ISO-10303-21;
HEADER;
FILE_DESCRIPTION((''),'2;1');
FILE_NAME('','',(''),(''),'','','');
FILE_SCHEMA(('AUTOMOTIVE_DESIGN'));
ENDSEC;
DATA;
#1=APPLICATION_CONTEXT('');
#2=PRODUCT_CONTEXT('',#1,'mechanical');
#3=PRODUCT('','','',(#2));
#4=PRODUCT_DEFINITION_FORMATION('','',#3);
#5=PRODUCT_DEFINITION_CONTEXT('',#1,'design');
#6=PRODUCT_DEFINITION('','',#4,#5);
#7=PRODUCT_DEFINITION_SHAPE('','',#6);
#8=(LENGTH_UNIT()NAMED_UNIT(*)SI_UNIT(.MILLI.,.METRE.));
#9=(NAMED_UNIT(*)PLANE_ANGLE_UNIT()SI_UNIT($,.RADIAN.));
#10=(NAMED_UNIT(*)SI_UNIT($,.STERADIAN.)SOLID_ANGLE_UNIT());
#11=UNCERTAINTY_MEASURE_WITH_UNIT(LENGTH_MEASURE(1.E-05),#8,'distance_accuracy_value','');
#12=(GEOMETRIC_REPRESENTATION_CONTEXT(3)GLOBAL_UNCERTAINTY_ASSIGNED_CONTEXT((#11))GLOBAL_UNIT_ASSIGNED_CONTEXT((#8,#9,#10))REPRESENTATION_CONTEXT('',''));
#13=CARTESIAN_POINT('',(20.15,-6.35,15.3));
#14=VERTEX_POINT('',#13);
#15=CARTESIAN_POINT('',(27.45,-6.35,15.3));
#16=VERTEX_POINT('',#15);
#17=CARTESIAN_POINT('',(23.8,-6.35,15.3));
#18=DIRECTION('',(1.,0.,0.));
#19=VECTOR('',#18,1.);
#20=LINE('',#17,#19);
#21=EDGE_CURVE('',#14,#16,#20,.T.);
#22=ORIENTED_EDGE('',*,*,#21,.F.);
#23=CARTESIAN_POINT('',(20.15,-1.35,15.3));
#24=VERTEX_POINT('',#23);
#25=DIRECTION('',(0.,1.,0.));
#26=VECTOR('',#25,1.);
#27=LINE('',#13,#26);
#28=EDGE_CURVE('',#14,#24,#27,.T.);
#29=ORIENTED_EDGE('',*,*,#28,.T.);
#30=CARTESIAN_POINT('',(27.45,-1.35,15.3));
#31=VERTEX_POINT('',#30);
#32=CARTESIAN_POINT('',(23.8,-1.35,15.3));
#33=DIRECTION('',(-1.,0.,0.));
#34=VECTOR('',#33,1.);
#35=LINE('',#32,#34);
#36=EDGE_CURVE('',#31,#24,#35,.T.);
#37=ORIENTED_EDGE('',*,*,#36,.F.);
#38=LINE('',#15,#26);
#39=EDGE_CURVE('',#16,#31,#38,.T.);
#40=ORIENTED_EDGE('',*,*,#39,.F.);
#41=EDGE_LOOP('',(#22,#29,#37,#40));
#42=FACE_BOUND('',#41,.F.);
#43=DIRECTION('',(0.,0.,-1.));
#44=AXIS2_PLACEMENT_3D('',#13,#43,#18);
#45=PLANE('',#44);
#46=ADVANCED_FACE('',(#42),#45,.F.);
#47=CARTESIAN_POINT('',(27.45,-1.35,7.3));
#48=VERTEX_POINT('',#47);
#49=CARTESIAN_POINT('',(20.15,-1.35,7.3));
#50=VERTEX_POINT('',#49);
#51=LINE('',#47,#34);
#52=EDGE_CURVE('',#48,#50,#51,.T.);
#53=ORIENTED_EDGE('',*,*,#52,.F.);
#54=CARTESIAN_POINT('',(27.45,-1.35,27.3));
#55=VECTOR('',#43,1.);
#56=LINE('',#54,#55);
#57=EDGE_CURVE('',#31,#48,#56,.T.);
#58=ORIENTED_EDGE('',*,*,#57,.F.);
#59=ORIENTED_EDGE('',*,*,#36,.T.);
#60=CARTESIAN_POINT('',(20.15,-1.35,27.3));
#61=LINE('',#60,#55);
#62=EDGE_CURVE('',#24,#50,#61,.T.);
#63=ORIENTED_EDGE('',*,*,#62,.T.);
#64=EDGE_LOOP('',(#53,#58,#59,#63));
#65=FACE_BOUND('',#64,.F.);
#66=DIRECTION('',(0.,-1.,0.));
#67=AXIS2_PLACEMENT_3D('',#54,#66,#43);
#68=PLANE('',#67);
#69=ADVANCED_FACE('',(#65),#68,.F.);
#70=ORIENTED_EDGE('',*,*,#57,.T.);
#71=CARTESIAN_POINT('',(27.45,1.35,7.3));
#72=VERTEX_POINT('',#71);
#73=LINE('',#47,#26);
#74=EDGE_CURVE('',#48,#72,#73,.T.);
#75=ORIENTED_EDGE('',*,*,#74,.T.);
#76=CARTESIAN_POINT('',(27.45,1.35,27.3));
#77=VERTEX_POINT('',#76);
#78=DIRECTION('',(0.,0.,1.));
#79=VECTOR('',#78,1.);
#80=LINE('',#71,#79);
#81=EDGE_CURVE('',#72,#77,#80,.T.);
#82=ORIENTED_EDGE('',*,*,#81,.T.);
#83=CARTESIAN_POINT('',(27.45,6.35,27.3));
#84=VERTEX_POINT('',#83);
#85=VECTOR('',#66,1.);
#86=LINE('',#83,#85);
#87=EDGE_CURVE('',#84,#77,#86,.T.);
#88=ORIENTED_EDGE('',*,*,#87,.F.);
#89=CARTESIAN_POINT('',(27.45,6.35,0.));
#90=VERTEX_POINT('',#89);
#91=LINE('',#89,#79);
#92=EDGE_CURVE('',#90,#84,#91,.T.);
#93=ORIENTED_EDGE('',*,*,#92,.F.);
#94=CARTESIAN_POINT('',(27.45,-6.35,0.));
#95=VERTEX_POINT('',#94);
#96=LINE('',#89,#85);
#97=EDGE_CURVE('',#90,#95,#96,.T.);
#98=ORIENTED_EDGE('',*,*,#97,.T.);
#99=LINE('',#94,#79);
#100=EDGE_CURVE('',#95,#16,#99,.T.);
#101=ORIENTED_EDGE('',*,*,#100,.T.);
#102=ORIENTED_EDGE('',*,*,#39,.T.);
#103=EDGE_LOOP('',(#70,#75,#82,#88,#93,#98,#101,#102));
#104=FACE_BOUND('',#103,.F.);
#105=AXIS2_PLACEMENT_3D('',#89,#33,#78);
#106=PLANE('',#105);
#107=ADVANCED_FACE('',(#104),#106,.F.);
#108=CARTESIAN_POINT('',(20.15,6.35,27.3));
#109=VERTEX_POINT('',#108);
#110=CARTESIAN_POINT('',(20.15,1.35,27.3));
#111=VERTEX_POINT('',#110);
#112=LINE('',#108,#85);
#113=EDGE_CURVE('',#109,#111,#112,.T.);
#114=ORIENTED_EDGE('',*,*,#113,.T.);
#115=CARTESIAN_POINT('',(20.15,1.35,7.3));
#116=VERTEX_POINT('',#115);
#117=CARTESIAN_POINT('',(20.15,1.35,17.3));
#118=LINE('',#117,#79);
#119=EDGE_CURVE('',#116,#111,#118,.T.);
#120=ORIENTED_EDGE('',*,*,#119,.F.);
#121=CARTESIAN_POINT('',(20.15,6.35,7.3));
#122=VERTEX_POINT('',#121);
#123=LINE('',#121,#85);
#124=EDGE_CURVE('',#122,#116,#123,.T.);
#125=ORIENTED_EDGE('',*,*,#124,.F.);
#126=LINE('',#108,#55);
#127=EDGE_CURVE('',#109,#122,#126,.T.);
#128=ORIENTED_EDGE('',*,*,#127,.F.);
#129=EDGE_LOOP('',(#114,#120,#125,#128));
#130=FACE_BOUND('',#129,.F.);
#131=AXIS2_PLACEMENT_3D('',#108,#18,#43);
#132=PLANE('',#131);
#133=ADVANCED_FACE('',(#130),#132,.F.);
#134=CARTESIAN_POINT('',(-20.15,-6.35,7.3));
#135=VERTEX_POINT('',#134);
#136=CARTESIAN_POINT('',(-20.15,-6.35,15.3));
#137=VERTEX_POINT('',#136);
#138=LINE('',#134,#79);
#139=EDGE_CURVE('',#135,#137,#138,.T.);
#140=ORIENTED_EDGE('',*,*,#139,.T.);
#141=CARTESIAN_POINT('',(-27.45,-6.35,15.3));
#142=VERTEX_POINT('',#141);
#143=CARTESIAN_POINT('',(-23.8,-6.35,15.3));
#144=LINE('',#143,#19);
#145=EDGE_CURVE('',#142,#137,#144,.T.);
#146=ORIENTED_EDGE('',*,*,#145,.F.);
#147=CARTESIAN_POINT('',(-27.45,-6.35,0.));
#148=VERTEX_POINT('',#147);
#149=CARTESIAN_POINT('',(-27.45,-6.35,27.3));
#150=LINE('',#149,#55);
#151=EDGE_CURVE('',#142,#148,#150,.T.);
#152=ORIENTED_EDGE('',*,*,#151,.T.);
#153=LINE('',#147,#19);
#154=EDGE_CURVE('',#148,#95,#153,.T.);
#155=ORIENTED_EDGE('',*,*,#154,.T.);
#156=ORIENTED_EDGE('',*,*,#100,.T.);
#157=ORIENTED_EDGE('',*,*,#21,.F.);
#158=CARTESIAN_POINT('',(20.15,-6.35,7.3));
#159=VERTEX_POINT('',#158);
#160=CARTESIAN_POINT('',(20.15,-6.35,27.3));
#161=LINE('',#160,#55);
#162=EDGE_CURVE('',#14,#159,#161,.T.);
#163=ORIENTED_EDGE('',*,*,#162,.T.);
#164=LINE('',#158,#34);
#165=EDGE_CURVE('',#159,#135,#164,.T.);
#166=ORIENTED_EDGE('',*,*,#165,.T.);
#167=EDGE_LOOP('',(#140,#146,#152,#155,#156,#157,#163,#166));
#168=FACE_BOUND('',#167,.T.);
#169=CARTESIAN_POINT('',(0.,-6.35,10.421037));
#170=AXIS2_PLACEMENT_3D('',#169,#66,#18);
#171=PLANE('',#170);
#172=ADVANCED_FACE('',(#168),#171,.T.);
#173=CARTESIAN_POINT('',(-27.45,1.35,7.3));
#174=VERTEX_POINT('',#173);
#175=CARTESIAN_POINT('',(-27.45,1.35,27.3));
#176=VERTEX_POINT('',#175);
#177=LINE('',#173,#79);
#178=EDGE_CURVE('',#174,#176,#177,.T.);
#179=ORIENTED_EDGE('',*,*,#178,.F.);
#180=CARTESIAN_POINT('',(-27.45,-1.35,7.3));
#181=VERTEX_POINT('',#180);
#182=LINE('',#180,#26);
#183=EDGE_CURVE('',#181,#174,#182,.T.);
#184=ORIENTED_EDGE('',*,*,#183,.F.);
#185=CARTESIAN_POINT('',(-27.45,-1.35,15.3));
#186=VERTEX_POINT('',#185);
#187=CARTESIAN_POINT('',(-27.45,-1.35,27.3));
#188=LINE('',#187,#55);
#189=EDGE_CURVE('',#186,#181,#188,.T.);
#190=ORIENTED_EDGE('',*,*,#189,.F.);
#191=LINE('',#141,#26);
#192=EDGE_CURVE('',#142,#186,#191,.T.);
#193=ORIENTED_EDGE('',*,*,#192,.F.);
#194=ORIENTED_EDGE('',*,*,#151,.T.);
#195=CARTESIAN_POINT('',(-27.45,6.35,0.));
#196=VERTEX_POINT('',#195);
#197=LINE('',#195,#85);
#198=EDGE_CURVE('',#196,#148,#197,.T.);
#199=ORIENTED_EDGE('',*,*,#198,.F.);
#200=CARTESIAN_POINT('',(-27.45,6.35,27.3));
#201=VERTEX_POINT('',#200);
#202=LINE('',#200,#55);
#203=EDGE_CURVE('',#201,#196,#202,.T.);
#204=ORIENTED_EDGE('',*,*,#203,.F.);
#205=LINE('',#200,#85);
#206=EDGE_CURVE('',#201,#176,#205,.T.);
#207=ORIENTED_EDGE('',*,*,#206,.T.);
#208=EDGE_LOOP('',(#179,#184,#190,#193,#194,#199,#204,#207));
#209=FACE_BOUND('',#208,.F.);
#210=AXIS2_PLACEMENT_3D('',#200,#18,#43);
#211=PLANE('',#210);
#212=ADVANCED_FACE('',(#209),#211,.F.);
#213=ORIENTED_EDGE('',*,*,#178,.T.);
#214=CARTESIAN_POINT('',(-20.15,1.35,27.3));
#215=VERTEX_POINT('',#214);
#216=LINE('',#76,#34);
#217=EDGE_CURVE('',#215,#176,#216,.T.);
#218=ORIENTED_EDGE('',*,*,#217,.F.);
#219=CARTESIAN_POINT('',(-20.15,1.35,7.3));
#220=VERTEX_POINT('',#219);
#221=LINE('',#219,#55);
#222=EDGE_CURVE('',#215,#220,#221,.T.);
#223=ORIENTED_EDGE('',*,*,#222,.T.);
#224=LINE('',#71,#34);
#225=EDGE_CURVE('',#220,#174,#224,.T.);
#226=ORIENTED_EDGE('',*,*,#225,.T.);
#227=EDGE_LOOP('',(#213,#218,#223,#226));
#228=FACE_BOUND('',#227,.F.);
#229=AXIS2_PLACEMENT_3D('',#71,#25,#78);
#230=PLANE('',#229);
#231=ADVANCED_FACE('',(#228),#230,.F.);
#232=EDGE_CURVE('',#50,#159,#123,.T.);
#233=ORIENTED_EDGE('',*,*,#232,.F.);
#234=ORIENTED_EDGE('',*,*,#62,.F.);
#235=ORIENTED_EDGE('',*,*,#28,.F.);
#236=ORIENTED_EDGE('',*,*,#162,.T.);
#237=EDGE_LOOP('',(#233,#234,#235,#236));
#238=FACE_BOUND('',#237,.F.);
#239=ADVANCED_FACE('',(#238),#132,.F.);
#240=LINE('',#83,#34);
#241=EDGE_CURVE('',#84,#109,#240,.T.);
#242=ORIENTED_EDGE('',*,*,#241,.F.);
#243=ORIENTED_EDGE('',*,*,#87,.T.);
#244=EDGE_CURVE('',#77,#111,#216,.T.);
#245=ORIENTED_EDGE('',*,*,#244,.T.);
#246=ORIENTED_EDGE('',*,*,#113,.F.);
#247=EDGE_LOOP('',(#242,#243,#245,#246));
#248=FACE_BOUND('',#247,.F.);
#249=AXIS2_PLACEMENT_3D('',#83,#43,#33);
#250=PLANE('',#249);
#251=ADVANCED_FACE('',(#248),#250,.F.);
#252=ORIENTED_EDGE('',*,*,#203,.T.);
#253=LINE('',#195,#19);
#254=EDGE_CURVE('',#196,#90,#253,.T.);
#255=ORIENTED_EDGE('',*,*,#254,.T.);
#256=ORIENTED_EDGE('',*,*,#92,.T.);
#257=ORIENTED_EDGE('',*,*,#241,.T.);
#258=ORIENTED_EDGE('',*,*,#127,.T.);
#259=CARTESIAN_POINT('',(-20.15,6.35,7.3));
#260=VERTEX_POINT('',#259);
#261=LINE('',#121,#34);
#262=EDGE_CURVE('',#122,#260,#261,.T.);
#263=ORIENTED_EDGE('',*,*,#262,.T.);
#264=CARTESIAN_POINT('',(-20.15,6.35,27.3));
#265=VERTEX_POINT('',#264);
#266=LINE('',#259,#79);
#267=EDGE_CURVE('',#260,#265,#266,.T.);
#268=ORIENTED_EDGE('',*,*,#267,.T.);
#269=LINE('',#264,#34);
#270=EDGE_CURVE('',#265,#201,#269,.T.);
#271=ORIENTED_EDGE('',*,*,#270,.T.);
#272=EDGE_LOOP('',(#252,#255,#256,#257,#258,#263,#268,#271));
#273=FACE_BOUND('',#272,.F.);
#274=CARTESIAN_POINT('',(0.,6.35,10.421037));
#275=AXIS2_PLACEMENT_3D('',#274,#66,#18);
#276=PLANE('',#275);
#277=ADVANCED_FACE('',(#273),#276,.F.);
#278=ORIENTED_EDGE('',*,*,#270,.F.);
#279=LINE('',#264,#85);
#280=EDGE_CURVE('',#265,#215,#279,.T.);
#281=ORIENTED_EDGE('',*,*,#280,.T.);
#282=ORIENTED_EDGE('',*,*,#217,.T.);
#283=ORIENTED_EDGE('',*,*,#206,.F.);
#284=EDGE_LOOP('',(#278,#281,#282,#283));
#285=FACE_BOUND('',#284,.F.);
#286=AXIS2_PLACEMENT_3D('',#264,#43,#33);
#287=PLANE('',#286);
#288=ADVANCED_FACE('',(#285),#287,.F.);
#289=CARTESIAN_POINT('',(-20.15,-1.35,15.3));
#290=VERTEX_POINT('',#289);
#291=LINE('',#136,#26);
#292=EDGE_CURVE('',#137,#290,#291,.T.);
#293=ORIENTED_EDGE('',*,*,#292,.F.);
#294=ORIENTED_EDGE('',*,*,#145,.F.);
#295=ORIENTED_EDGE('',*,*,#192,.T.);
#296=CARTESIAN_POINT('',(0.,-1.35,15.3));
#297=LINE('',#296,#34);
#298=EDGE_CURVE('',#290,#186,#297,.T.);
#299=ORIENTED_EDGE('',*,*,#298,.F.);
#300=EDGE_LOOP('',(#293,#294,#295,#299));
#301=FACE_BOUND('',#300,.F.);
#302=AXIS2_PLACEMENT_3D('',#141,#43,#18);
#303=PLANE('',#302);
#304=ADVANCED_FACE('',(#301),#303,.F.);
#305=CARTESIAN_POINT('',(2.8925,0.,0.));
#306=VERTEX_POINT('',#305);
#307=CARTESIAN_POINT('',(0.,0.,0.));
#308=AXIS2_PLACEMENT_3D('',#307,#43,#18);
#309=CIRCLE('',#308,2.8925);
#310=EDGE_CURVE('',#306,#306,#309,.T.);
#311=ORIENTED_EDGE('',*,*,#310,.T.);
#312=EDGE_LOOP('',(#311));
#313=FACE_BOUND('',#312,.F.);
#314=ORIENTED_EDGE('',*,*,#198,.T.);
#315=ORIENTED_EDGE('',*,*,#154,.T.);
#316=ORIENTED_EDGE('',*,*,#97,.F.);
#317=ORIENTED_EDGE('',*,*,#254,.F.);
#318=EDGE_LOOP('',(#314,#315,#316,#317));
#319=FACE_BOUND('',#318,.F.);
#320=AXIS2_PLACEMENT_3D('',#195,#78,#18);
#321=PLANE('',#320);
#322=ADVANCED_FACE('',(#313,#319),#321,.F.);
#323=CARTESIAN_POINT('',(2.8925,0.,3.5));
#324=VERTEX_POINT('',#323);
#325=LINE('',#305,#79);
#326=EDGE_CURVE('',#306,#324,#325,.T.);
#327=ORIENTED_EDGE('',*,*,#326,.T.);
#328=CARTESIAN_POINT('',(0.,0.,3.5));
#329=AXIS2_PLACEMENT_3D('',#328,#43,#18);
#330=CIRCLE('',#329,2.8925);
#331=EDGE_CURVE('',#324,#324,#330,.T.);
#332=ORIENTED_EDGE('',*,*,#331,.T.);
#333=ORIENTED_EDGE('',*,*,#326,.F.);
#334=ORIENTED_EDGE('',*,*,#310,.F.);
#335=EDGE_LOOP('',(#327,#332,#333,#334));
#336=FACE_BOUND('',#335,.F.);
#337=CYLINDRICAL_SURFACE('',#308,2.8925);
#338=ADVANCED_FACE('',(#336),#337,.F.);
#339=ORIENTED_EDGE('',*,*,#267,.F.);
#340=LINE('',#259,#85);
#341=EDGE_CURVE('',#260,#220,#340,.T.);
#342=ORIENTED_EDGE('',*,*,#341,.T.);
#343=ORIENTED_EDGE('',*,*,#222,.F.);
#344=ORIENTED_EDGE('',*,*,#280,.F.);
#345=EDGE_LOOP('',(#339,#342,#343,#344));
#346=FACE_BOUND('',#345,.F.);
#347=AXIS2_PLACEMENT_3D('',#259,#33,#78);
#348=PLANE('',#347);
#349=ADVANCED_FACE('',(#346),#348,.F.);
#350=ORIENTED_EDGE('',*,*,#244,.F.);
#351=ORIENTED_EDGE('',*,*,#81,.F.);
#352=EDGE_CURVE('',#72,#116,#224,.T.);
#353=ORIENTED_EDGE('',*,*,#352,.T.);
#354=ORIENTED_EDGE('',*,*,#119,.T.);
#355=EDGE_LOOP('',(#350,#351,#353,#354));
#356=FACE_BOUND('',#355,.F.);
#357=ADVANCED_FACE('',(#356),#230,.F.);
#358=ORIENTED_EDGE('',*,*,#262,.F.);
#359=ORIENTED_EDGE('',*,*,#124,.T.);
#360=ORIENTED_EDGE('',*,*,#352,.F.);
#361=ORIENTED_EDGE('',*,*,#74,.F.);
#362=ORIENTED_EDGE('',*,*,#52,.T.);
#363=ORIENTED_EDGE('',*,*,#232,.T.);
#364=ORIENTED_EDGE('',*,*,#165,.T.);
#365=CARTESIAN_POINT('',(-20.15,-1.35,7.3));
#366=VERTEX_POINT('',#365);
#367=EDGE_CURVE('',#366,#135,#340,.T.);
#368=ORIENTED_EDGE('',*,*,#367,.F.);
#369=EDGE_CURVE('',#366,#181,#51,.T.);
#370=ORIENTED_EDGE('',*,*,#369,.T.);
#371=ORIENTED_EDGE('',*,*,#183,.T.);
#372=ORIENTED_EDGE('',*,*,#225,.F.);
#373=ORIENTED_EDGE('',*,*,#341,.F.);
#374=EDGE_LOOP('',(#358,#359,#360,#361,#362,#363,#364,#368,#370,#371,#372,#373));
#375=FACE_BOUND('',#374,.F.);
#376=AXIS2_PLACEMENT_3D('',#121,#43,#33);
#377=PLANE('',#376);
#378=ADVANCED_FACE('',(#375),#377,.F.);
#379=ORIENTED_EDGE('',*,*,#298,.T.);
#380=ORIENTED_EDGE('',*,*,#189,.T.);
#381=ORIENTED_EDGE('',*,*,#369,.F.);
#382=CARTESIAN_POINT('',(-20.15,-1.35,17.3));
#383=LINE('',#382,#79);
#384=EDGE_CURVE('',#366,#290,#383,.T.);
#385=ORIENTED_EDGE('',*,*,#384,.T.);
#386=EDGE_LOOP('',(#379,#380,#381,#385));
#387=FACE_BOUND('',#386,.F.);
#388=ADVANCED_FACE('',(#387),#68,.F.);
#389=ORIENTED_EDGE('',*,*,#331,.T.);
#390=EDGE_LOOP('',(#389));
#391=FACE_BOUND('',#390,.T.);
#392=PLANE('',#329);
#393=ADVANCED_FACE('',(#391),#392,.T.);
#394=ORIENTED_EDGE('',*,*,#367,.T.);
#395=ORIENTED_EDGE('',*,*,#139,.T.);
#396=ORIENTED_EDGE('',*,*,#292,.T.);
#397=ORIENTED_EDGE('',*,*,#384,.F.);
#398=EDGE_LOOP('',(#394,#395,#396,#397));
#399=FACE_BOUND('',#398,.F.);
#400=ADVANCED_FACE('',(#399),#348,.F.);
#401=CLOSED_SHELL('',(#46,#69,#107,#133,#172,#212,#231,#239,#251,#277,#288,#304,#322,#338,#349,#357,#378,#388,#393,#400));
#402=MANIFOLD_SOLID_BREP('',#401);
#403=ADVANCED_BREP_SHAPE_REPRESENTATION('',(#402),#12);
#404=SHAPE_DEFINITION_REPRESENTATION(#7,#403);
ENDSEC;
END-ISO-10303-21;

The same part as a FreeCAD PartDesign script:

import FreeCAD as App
import Part
import Sketcher
from FreeCAD import Vector
Q = App.Units.Quantity


def add_polygon(sketch, points):
    """Adds a closed chain of lines whose ends are joined by coincident constraints."""
    first, n = sketch.GeometryCount, len(points)
    for a, b in zip(points, points[1:] + points[:1]):
        sketch.addGeometry(Part.LineSegment(App.Vector(*a, 0), App.Vector(*b, 0)), False)
    for i in range(n):
        sketch.addConstraint(Sketcher.Constraint("Coincident", first + i, 2, first + (i + 1) % n, 1))

doc = App.newDocument("Part")
body = doc.addObject("PartDesign::Body", "Body")

# Sketch on XY plane
sketch1 = doc.addObject("Sketcher::SketchObject", "Sketch")
body.addObject(sketch1)
sketch1.AttachmentSupport = (doc.XY_Plane, [""])
sketch1.MapMode = "FlatFace"
add_polygon(sketch1, [(20, 10), (20, -10), (-20, -10), (-20, 10), (-27, 10), (-27, -17), (27, -17), (27, 10)])  # lines 0-7
sketch1.addConstraint([
    Sketcher.Constraint("Vertical", 0),
    Sketcher.Constraint("Horizontal", 1),
    Sketcher.Constraint("Vertical", 2),
    Sketcher.Constraint("Horizontal", 3),
    Sketcher.Constraint("Vertical", 4),
    Sketcher.Constraint("Horizontal", 5),
    Sketcher.Constraint("Vertical", 6),
    Sketcher.Constraint("Horizontal", 7),
    Sketcher.Constraint("Symmetric", 0, 2, 2, 2, -1, 1),
    Sketcher.Constraint("Symmetric", 3, 2, 6, 2, -2),
    Sketcher.Constraint("DistanceY", 0, 2, 0, 1, Q("20 mm")),
    Sketcher.Constraint("DistanceX", 1, 2, 1, 1, Q("40.3 mm")),
    Sketcher.Constraint("DistanceX", 3, 2, 3, 1, Q("7.3 mm")),
    Sketcher.Constraint("DistanceY", 4, 2, 4, 1, Q("27.3 mm")),
])
pad1 = doc.addObject("PartDesign::Pad", "Pad")
body.addObject(pad1)
pad1.Profile = sketch1
pad1.Length = 12.7
body2 = doc.addObject("PartDesign::Body", "Body001")
doc.recompute()

body.Placement = App.Placement(Vector(0, -4.6, 30), App.Rotation(Vector(-1, 0, 0), 270))
boolean = doc.addObject("PartDesign::Boolean", "Boolean")
body2.addObject(boolean)
boolean.Type = "Fuse"
boolean.addObjects([body])

# Sketch on XZ plane
sketch2 = doc.addObject("Sketcher::SketchObject", "Sketch001")
body2.addObject(sketch2)
sketch2.AttachmentSupport = (doc.getObject("XZ_Plane001"), [""])
sketch2.MapMode = "FlatFace"
sketch2.AttachmentOffset = App.Placement(Vector(0, 0, 17.3), App.Rotation())
add_polygon(sketch2, [(20, 40), (20, 28), (27, 28), (27, 40)])  # lines 0-3
add_polygon(sketch2, [(-27, 40), (-27, 28), (-20, 28), (-20, 40)])  # lines 4-7
sketch2.addConstraint([
    Sketcher.Constraint("Vertical", 0),
    Sketcher.Constraint("Horizontal", 1),
    Sketcher.Constraint("Vertical", 2),
    Sketcher.Constraint("Horizontal", 3),
    Sketcher.Constraint("Vertical", 4),
    Sketcher.Constraint("Horizontal", 5),
    Sketcher.Constraint("Vertical", 6),
    Sketcher.Constraint("Horizontal", 7),
    Sketcher.Constraint("Symmetric", 1, 2, 4, 2, -2),
    Sketcher.Constraint("Symmetric", 3, 2, 6, 2, -2),
    Sketcher.Constraint("DistanceY", 0, 2, 0, 1, Q("12 mm")),
    Sketcher.Constraint("DistanceX", 1, 1, 1, 2, Q("7.3 mm")),
    Sketcher.Constraint("DistanceY", -1, 1, 0, 2, Q("28 mm")),
    Sketcher.Constraint("DistanceX", 4, 2, 0, 2, Q("47.6 mm")),
])
pocket1 = doc.addObject("PartDesign::Pocket", "Pocket")
body2.addObject(pocket1)
pocket1.Profile = sketch2
pocket1.Length = 7.2

# Sketch on YZ plane
sketch3 = doc.addObject("Sketcher::SketchObject", "Sketch002")
body2.addObject(sketch3)
sketch3.AttachmentSupport = (doc.getObject("YZ_Plane001"), [""])
sketch3.MapMode = "FlatFace"
sketch3.AttachmentOffset = App.Placement(Vector(0, 0, 27.45), App.Rotation())
add_polygon(sketch3, [(-12.3, 40), (-12.3, 20), (-9.6, 20), (-9.6, 40)])  # lines 0-3
sketch3.addConstraint([
    Sketcher.Constraint("Vertical", 0),
    Sketcher.Constraint("Horizontal", 1),
    Sketcher.Constraint("Vertical", 2),
    Sketcher.Constraint("Horizontal", 3),
    Sketcher.Constraint("DistanceY", 0, 2, 0, 1, Q("20 mm")),
    Sketcher.Constraint("DistanceX", 1, 1, 1, 2, Q("2.7 mm")),
    Sketcher.Constraint("DistanceY", -1, 1, 0, 2, Q("20 mm")),
    Sketcher.Constraint("DistanceX", 0, 2, -1, 1, Q("12.3 mm")),
])
pocket2 = doc.addObject("PartDesign::Pocket", "Pocket001")
body2.addObject(pocket2)
pocket2.Profile = sketch3
pocket2.Length = 54.9

# Sketch on XY plane
sketch4 = doc.addObject("Sketcher::SketchObject", "Sketch003")
body2.addObject(sketch4)
sketch4.AttachmentSupport = (doc.getObject("XY_Plane001"), [""])
sketch4.MapMode = "FlatFace"
sketch4.AttachmentOffset = App.Placement(Vector(0, 0, 12.7), App.Rotation())
sketch4.addGeometry(Part.Circle(Vector(0, -10.9, 0), Vector(0, 0, 1), 2.9), False)
sketch4.addConstraint([
    Sketcher.Constraint("PointOnObject", 0, 3, -2),
    Sketcher.Constraint("Diameter", 0, Q("5.785 mm")),
    Sketcher.Constraint("DistanceY", 0, 3, -1, 1, Q("10.95 mm")),
])
pocket3 = doc.addObject("PartDesign::Pocket", "Pocket002")
body2.addObject(pocket3)
pocket3.Profile = sketch4
pocket3.Length = 3.5
pocket3.Reversed = True
body3 = doc.addObject("PartDesign::Body", "Body002")
doc.recompute()

body2.Placement = App.Placement(Vector(0, 10.95, -12.7), App.Rotation(Vector(0, 0, 1), 0))
boolean2 = doc.addObject("PartDesign::Boolean", "Boolean001")
body3.addObject(boolean2)
boolean2.Type = "Fuse"
boolean2.addObjects([body2])

doc.recompute()
